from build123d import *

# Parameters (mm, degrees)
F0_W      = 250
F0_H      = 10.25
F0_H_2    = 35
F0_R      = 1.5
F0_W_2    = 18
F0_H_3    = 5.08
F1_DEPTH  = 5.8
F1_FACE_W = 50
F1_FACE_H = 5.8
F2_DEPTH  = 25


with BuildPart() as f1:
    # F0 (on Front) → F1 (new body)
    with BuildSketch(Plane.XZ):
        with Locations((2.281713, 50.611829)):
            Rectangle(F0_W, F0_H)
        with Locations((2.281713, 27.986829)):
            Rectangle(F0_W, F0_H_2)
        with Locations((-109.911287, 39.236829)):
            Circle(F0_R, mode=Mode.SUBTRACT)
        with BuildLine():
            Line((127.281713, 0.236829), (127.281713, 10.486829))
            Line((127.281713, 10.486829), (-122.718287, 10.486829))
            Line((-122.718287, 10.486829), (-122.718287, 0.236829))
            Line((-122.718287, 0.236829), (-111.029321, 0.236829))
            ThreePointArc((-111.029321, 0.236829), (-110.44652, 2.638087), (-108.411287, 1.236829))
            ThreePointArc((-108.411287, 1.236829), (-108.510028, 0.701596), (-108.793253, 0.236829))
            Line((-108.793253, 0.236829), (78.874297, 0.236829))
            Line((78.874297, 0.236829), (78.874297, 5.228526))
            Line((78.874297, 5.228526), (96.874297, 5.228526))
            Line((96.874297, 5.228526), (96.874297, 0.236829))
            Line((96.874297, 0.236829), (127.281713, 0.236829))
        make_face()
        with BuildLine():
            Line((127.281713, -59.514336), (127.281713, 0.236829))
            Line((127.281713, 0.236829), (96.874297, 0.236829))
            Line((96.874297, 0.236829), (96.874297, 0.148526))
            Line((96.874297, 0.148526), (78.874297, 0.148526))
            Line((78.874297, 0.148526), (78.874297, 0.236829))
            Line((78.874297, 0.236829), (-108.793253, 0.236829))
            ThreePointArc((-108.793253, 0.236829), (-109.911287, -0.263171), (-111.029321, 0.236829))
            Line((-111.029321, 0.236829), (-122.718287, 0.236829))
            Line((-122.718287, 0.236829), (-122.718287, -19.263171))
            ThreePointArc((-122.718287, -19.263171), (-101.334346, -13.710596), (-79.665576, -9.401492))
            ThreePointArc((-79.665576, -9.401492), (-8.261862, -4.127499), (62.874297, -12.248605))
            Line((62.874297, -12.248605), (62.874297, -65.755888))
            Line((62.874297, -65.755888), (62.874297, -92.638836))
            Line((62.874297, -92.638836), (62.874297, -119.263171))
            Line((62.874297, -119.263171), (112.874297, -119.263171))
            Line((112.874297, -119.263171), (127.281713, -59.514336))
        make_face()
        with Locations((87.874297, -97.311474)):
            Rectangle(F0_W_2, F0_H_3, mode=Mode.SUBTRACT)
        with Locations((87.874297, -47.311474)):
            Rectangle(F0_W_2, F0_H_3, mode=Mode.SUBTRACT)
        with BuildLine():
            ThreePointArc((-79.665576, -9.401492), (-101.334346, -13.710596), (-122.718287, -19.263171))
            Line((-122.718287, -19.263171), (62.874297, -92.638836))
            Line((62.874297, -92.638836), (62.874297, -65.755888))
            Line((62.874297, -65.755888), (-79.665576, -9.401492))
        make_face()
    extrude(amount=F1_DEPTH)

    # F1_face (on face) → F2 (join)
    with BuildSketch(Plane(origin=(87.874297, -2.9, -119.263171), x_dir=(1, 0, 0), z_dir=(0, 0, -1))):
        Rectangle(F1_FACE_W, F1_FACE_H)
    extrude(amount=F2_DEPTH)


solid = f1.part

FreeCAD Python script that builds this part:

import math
import FreeCAD as App
import Part
import Sketcher
Q = App.Units.Quantity


def add_polygon(sketch, points):
    """Adds a closed chain of lines whose ends are joined by coincident constraints."""
    first, n = sketch.GeometryCount, len(points)
    for a, b in zip(points, points[1:] + points[:1]):
        sketch.addGeometry(Part.LineSegment(App.Vector(*a, 0), App.Vector(*b, 0)), False)
    for i in range(n):
        sketch.addConstraint(Sketcher.Constraint("Coincident", first + i, 2, first + (i + 1) % n, 1))

doc = App.newDocument("Part")
params = doc.addObject("Spreadsheet::Sheet", "Params")
for row, (alias, value) in enumerate([
    ("sketch1_diameter", "3 mm"),
    ("sketch1_width", "50 mm"),
    ("sketch1_width2", "250 mm"),
    ("sketch1_width3", "18 mm"),
    ("sketch1_height", "75 mm"),
    ("pad1_length", "5.8 mm"),
    ("sketch2_width", "50 mm"),
    ("sketch2_height", "5.8 mm"),
    ("pad2_length", "25 mm"),
], start=1):
    params.set(f"A{row}", alias)
    params.set(f"B{row}", "=" + value)
    params.setAlias(f"B{row}", alias)

body = doc.addObject("PartDesign::Body", "Body")

sketch1 = doc.addObject("Sketcher::SketchObject", "Sketch")
body.addObject(sketch1)
sketch1.AttachmentSupport = (doc.XZ_Plane, [""])
sketch1.MapMode = "FlatFace"
add_polygon(sketch1, [(-122.718287, 55.736829), (-122.718287, -19.263171), (62.874297, -92.638836), (62.874297, -119.263171), (112.874297, -119.263171), (127.281713, -59.514336), (127.281713, 55.736829)])
sketch1.addGeometry(Part.ArcOfCircle(Part.Circle(App.Vector(-15.902922, -386.674953, 0), App.Vector(0, 0, 1), 382.623759), math.radians(78.118578), math.radians(99.592857)), False)
sketch1.addGeometry(Part.LineSegment(App.Vector(62.874297, -12.248605, 0), App.Vector(62.874297, -65.755888, 0)), False)
sketch1.addGeometry(Part.LineSegment(App.Vector(62.874297, -65.755888, 0), App.Vector(-79.665576, -9.401492, 0)), False)
add_polygon(sketch1, [(96.874297, -99.851474), (78.874297, -99.851474), (78.874297, -94.771474), (96.874297, -94.771474)])
add_polygon(sketch1, [(96.874297, -49.851474), (78.874297, -49.851474), (78.874297, -44.771474), (96.874297, -44.771474)])
sketch1.addGeometry(Part.ArcOfCircle(Part.Circle(App.Vector(-109.911287, 1.236829, 0), App.Vector(0, 0, 1), 1.5), math.radians(0.000015), math.radians(221.8103)), False)
sketch1.addGeometry(Part.ArcOfCircle(Part.Circle(App.Vector(-109.911282, 1.236827, 0), App.Vector(0, 0, 1), 1.499995), math.radians(-41.810393), math.radians(0.000079)), False)
sketch1.addGeometry(Part.ArcOfCircle(Part.Circle(App.Vector(-109.911287, 1.236829, 0), App.Vector(0, 0, 1), 1.5), math.radians(-138.189685), math.radians(-41.810315)), False)
sketch1.addGeometry(Part.Circle(App.Vector(-109.911287, 39.236829, 0), App.Vector(0, 0, 1), 1.5), False)
add_polygon(sketch1, [(78.874297, 5.228526), (96.874297, 5.228526), (96.874297, 0.148526), (78.874297, 0.148526)])
sketch1.addConstraint(Sketcher.Constraint("Coincident", 7, 1, 8, 1))
sketch1.addConstraint(Sketcher.Constraint("Coincident", 8, 2, 9, 1))
sketch1.addConstraint(Sketcher.Constraint("Coincident", 9, 2, 7, 2))
sketch1.addConstraint(Sketcher.Constraint("Tangent", 18, 1, 19, 2))
sketch1.addConstraint(Sketcher.Constraint("Tangent", 19, 1, 20, 2))
sketch1.addConstraint(Sketcher.Constraint("Tangent", 20, 1, 18, 2))
sketch1.addConstraint(Sketcher.Constraint("Vertical", 0))
sketch1.addConstraint(Sketcher.Constraint("Vertical", 2))
sketch1.addConstraint(Sketcher.Constraint("Horizontal", 3))
sketch1.addConstraint(Sketcher.Constraint("Vertical", 5))
sketch1.addConstraint(Sketcher.Constraint("Horizontal", 6))
sketch1.addConstraint(Sketcher.Constraint("Vertical", 8))
sketch1.addConstraint(Sketcher.Constraint("Horizontal", 10))
sketch1.addConstraint(Sketcher.Constraint("Vertical", 11))
sketch1.addConstraint(Sketcher.Constraint("Horizontal", 12))
sketch1.addConstraint(Sketcher.Constraint("Vertical", 13))
sketch1.addConstraint(Sketcher.Constraint("Horizontal", 14))
sketch1.addConstraint(Sketcher.Constraint("Vertical", 15))
sketch1.addConstraint(Sketcher.Constraint("Horizontal", 16))
sketch1.addConstraint(Sketcher.Constraint("Vertical", 17))
sketch1.addConstraint(Sketcher.Constraint("Horizontal", 22))
sketch1.addConstraint(Sketcher.Constraint("Vertical", 23))
sketch1.addConstraint(Sketcher.Constraint("Horizontal", 24))
sketch1.addConstraint(Sketcher.Constraint("Vertical", 25))
sketch1.addConstraint(Sketcher.Constraint("Equal", 20, 21))
sketch1.addConstraint(Sketcher.Constraint("Parallel", 1, 9))
sketch1.addConstraint(Sketcher.Constraint("Horizontal", 20, 3, 18, 1))
sketch1.addConstraint(Sketcher.Constraint("Horizontal", 19, 1, 20, 1))
sketch1.addConstraint(Sketcher.Constraint("Vertical", 20, 3, 21, 3))
sketch1.addConstraint(Sketcher.Constraint("Vertical", 2, 2, 7, 1))
sketch1.addConstraint(Sketcher.Constraint("Vertical", 11, 2, 14, 2))
sketch1.addConstraint(Sketcher.Constraint("Vertical", 13, 2, 16, 2))
sketch1.addConstraint(Sketcher.Constraint("Vertical", 17, 2, 22, 2))
sketch1.addConstraint(Sketcher.Constraint("Vertical", 15, 2, 24, 2))
sketch1.addConstraint(Sketcher.Constraint("Equal", 13, 15))
sketch1.addConstraint(Sketcher.Constraint("Equal", 17, 23))
sketch1.addConstraint(Sketcher.Constraint("Diameter", 21, Q("3 mm")))
sketch1.addConstraint(Sketcher.Constraint("DistanceX", 3, 1, 3, 2, Q("50 mm")))
sketch1.addConstraint(Sketcher.Constraint("DistanceX", 6, 2, 6, 1, Q("250 mm")))
sketch1.addConstraint(Sketcher.Constraint("DistanceX", 10, 2, 10, 1, Q("18 mm")))
sketch1.addConstraint(Sketcher.Constraint("DistanceY", 0, 2, 0, 1, Q("75 mm")))
sketch1.addConstraint(Sketcher.Constraint("DistanceY", 20, 3, 21, 3, Q("38 mm")))
sketch1.addConstraint(Sketcher.Constraint("DistanceY", 2, 2, 0, 2, Q("100 mm")))
sketch1.addConstraint(Sketcher.Constraint("DistanceX", 1, 2, 10, 2, Q("16 mm")))
sketch1.addConstraint(Sketcher.Constraint("DistanceY", 11, 2, 15, 2, Q("50 mm")))
sketch1.addConstraint(Sketcher.Constraint("DistanceY", 19, 1, 18, 1, Q("1 mm")))
sketch1.addConstraint(Sketcher.Constraint("DistanceY", 16, 2, 22, 2, Q("50 mm")))
sketch1.addConstraint(Sketcher.Constraint("DistanceY", 11, 1, 11, 2, Q("5.08 mm")))
sketch1.addConstraint(Sketcher.Constraint("DistanceY", 0, 2, 18, 3, Q("20.5 mm")))
sketch1.addConstraint(Sketcher.Constraint("Radius", 7, Q("382.623759 mm")))
sketch1.addConstraint(Sketcher.Constraint("DistanceX", 0, 2, 18, 3, Q("12.807 mm")))
sketch1.addConstraint(Sketcher.Constraint("DistanceY", 1, 2, 4, 2, Q("33.1245 mm")))
sketch1.addConstraint(Sketcher.Constraint("Distance", 1, Q("199.571029 mm")))
sketch1.addConstraint(Sketcher.Constraint("DistanceY", 2, 2, 2, 1, Q("26.624335 mm")))
sketch1.addConstraint(Sketcher.Constraint("DistanceY", 8, 2, 8, 1, Q("53.507283 mm")))
sketch1.addConstraint(Sketcher.Constraint("DistanceY", -1, 1, 18, 3, Q("1.236829 mm")))
sketch1.addConstraint(Sketcher.Constraint("DistanceX", 19, 3, -1, 1, Q("109.911282 mm")))
sketch1.addConstraint(Sketcher.Constraint("DistanceY", 8, 2, -1, 1, Q("65.755888 mm")))
sketch1.addConstraint(Sketcher.Constraint("DistanceY", 9, 2, -1, 1, Q("9.401492 mm")))
sketch1.addConstraint(Sketcher.Constraint("DistanceY", 11, 2, 1, 2, Q("2.132638 mm")))
sketch1.setExpression("Constraints[55]", "Params.sketch1_diameter")
sketch1.setExpression("Constraints[56]", "Params.sketch1_width")
sketch1.setExpression("Constraints[57]", "Params.sketch1_width2")
sketch1.setExpression("Constraints[58]", "Params.sketch1_width3")
sketch1.setExpression("Constraints[59]", "Params.sketch1_height")
pad1 = doc.addObject("PartDesign::Pad", "Pad")
body.addObject(pad1)
pad1.Profile = sketch1
pad1.setExpression("Length", "Params.pad1_length")

sketch2 = doc.addObject("Sketcher::SketchObject", "Sketch001")
body.addObject(sketch2)
sketch2.AttachmentSupport = (doc.XY_Plane, [""])
sketch2.MapMode = "FlatFace"
sketch2.AttachmentOffset = App.Placement(App.Vector(0, 0, -119.263171), App.Rotation())
add_polygon(sketch2, [(62.874297, -5.8), (62.874297, 0), (112.874297, 0), (112.874297, -5.8)])
sketch2.addConstraint(Sketcher.Constraint("Vertical", 0))
sketch2.addConstraint(Sketcher.Constraint("Horizontal", 1))
sketch2.addConstraint(Sketcher.Constraint("Vertical", 2))
sketch2.addConstraint(Sketcher.Constraint("Horizontal", 3))
sketch2.addConstraint(Sketcher.Constraint("PointOnObject", 0, 2, -1))
sketch2.addConstraint(Sketcher.Constraint("DistanceX", 1, 1, 1, 2, Q("50 mm")))
sketch2.addConstraint(Sketcher.Constraint("DistanceY", 0, 1, 0, 2, Q("5.8 mm")))
sketch2.addConstraint(Sketcher.Constraint("DistanceX", -1, 1, 0, 2, Q("62.874297 mm")))
sketch2.setExpression("Constraints[9]", "Params.sketch2_width")
sketch2.setExpression("Constraints[10]", "Params.sketch2_height")
pad2 = doc.addObject("PartDesign::Pad", "Pad001")
body.addObject(pad2)
pad2.Profile = sketch2
pad2.setExpression("Length", "Params.pad2_length")
pad2.Reversed = True

doc.recompute()
